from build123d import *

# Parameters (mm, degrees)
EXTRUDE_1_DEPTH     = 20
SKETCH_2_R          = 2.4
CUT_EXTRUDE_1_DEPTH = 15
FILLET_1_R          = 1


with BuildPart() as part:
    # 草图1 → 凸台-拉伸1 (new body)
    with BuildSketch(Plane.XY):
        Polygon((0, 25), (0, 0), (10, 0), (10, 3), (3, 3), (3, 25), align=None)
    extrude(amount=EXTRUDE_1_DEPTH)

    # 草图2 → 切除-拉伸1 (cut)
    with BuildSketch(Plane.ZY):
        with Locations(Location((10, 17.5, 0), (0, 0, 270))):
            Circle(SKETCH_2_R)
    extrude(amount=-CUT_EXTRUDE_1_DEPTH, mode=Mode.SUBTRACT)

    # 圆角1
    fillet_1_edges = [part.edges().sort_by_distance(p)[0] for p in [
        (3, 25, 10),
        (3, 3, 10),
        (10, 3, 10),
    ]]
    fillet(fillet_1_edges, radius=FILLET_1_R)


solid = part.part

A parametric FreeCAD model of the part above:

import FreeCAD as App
import Part
import Sketcher
Q = App.Units.Quantity


def edges_at(feature, points):
    """Names of the edges that pass closest to the given points."""
    edges = feature.Shape.Edges
    near = lambda p: min(range(len(edges)), key=lambda i: edges[i].distToShape(Part.Vertex(*p))[0])
    return sorted({f"Edge{near(p) + 1}" for p in points})


def add_polygon(sketch, points):
    """Adds a closed chain of lines whose ends are joined by coincident constraints."""
    first, n = sketch.GeometryCount, len(points)
    for a, b in zip(points, points[1:] + points[:1]):
        sketch.addGeometry(Part.LineSegment(App.Vector(*a, 0), App.Vector(*b, 0)), False)
    for i in range(n):
        sketch.addConstraint(Sketcher.Constraint("Coincident", first + i, 2, first + (i + 1) % n, 1))

doc = App.newDocument("Part")
body = doc.addObject("PartDesign::Body", "Body")

# Sketch on XY plane
sketch1 = doc.addObject("Sketcher::SketchObject", "Sketch")
body.addObject(sketch1)
sketch1.AttachmentSupport = (doc.XY_Plane, [""])
sketch1.MapMode = "FlatFace"
add_polygon(sketch1, [(0, 25), (0, 0), (10, 0), (10, 3), (3, 3), (3, 25)])  # lines 0-5
sketch1.addConstraint(Sketcher.Constraint("Vertical", 0))
sketch1.addConstraint(Sketcher.Constraint("Horizontal", 1))
sketch1.addConstraint(Sketcher.Constraint("Vertical", 2))
sketch1.addConstraint(Sketcher.Constraint("Horizontal", 3))
sketch1.addConstraint(Sketcher.Constraint("Vertical", 4))
sketch1.addConstraint(Sketcher.Constraint("Horizontal", 5))
sketch1.addConstraint(Sketcher.Constraint("Coincident", 0, 2, -1, 1))
sketch1.addConstraint(Sketcher.Constraint("Equal", 5, 2))
sketch1.addConstraint(Sketcher.Constraint("DistanceX", 1, 1, 1, 2, Q("10 mm")))
sketch1.addConstraint(Sketcher.Constraint("DistanceX", 3, 2, 3, 1, Q("7 mm")))
sketch1.addConstraint(Sketcher.Constraint("DistanceY", 0, 2, 0, 1, Q("25 mm")))
pad1 = doc.addObject("PartDesign::Pad", "Pad")
body.addObject(pad1)
pad1.Profile = sketch1
pad1.Length = 20

# Sketch on YZ plane
sketch2 = doc.addObject("Sketcher::SketchObject", "Sketch001")
body.addObject(sketch2)
sketch2.AttachmentSupport = (doc.YZ_Plane, [""])
sketch2.MapMode = "FlatFace"
sketch2.addGeometry(Part.Circle(App.Vector(17.5, 10, 0), App.Vector(0, 0, 1), 2.4), False)
sketch2.addConstraint(Sketcher.Constraint("Diameter", 0, Q("4.8 mm")))
sketch2.addConstraint(Sketcher.Constraint("DistanceY", -1, 1, 0, 3, Q("10 mm")))
sketch2.addConstraint(Sketcher.Constraint("DistanceX", -1, 1, 0, 3, Q("17.5 mm")))
pocket1 = doc.addObject("PartDesign::Pocket", "Pocket")
body.addObject(pocket1)
pocket1.Profile = sketch2
pocket1.Length = 15
pocket1.Reversed = True
doc.recompute()

fillet = doc.addObject("PartDesign::Fillet", "Fillet")
body.addObject(fillet)
fillet.Base = (pocket1, edges_at(pocket1, [(3, 25, 10), (3, 3, 10), (10, 3, 10)]))
fillet.Radius = 1

doc.recompute()
